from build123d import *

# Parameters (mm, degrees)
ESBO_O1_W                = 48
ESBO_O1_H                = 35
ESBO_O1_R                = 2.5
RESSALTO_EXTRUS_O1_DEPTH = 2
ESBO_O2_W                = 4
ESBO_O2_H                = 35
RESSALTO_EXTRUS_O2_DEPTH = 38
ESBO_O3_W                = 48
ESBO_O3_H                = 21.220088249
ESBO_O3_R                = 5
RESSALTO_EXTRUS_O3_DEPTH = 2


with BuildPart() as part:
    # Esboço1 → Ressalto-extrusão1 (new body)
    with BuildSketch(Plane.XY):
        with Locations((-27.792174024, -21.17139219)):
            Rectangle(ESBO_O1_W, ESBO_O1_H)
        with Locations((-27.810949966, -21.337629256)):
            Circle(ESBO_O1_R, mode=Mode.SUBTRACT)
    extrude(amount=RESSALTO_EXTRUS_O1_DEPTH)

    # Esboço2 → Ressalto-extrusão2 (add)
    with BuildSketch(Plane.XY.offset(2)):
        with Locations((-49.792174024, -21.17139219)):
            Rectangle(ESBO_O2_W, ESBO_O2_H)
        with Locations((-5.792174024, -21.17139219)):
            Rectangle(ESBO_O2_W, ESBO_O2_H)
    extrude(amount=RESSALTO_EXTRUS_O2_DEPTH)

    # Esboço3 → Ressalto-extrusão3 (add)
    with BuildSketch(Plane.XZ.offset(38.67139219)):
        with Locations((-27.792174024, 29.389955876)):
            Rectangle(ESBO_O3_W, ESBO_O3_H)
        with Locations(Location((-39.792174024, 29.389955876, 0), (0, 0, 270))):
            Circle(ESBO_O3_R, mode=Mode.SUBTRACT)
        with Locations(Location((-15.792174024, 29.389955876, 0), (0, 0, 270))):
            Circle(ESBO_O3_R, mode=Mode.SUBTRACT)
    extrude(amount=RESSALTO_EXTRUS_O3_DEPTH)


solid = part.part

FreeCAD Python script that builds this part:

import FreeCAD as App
import Part
import Sketcher
Q = App.Units.Quantity

doc = App.newDocument("Part")
params = doc.addObject("Spreadsheet::Sheet", "Params")
for row, (alias, value) in enumerate([
    ("sketch1_diameter", "5 mm"),
    ("sketch1_width", "48 mm"),
    ("sketch1_height", "35 mm"),
    ("pad1_length", "2 mm"),
    ("sketch2_width", "4 mm"),
    ("sketch2_height", "35 mm"),
    ("pad2_length", "38 mm"),
    ("sketch3_diameter", "10 mm"),
    ("sketch3_width", "48 mm"),
    ("pad3_length", "2 mm"),
], start=1):
    params.set(f"A{row}", alias)
    params.set(f"B{row}", "=" + value)
    params.setAlias(f"B{row}", alias)

body = doc.addObject("PartDesign::Body", "Body")

sketch1 = body.newObject("Sketcher::SketchObject", "Sketch")
sketch1.AttachmentSupport = (doc.getObject("XY_Plane"), [""])
sketch1.MapMode = "FlatFace"
sketch1.addGeometry(Part.LineSegment(App.Vector(-51.792174, -3.671392, 0), App.Vector(-51.792174, -38.671392, 0)), False)
sketch1.addGeometry(Part.LineSegment(App.Vector(-51.792174, -38.671392, 0), App.Vector(-3.792174, -38.671392, 0)), False)
sketch1.addGeometry(Part.LineSegment(App.Vector(-3.792174, -38.671392, 0), App.Vector(-3.792174, -3.671392, 0)), False)
sketch1.addGeometry(Part.LineSegment(App.Vector(-3.792174, -3.671392, 0), App.Vector(-51.792174, -3.671392, 0)), False)
sketch1.addGeometry(Part.Circle(App.Vector(-27.81095, -21.337629, 0), App.Vector(0, 0, 1), 2.5), False)
sketch1.addConstraint(Sketcher.Constraint("Coincident", 0, 2, 1, 1))
sketch1.addConstraint(Sketcher.Constraint("Coincident", 1, 2, 2, 1))
sketch1.addConstraint(Sketcher.Constraint("Coincident", 2, 2, 3, 1))
sketch1.addConstraint(Sketcher.Constraint("Coincident", 3, 2, 0, 1))
sketch1.addConstraint(Sketcher.Constraint("Vertical", 0))
sketch1.addConstraint(Sketcher.Constraint("Horizontal", 1))
sketch1.addConstraint(Sketcher.Constraint("Vertical", 2))
sketch1.addConstraint(Sketcher.Constraint("Horizontal", 3))
sketch1.addConstraint(Sketcher.Constraint("Diameter", 4, Q("5 mm")))
sketch1.addConstraint(Sketcher.Constraint("DistanceX", 1, 1, 1, 2, Q("48 mm")))
sketch1.addConstraint(Sketcher.Constraint("DistanceY", 0, 2, 0, 1, Q("35 mm")))
sketch1.addConstraint(Sketcher.Constraint("DistanceX", 4, 3, -1, 1, Q("27.81095 mm")))
sketch1.addConstraint(Sketcher.Constraint("DistanceY", 4, 3, -1, 1, Q("21.337629 mm")))
sketch1.addConstraint(Sketcher.Constraint("DistanceX", 0, 2, -1, 1, Q("51.792174 mm")))
sketch1.addConstraint(Sketcher.Constraint("DistanceY", 0, 2, -1, 1, Q("38.671392 mm")))
sketch1.setExpression("Constraints[8]", "Params.sketch1_diameter")
sketch1.setExpression("Constraints[9]", "Params.sketch1_width")
sketch1.setExpression("Constraints[10]", "Params.sketch1_height")
pad1 = body.newObject("PartDesign::Pad", "Pad")
pad1.Profile = sketch1
pad1.setExpression("Length", "Params.pad1_length")

sketch2 = body.newObject("Sketcher::SketchObject", "Sketch001")
sketch2.AttachmentSupport = (doc.getObject("XY_Plane"), [""])
sketch2.MapMode = "FlatFace"
sketch2.AttachmentOffset = App.Placement(App.Vector(0, 0, 2), App.Rotation())
sketch2.addGeometry(Part.LineSegment(App.Vector(-51.792174, -3.671392, 0), App.Vector(-51.792174, -38.671392, 0)), False)
sketch2.addGeometry(Part.LineSegment(App.Vector(-51.792174, -38.671392, 0), App.Vector(-47.792174, -38.671392, 0)), False)
sketch2.addGeometry(Part.LineSegment(App.Vector(-47.792174, -38.671392, 0), App.Vector(-47.792174, -3.671392, 0)), False)
sketch2.addGeometry(Part.LineSegment(App.Vector(-47.792174, -3.671392, 0), App.Vector(-51.792174, -3.671392, 0)), False)
sketch2.addGeometry(Part.LineSegment(App.Vector(-7.792174, -3.671392, 0), App.Vector(-7.792174, -38.671392, 0)), False)
sketch2.addGeometry(Part.LineSegment(App.Vector(-7.792174, -38.671392, 0), App.Vector(-3.792174, -38.671392, 0)), False)
sketch2.addGeometry(Part.LineSegment(App.Vector(-3.792174, -38.671392, 0), App.Vector(-3.792174, -3.671392, 0)), False)
sketch2.addGeometry(Part.LineSegment(App.Vector(-3.792174, -3.671392, 0), App.Vector(-7.792174, -3.671392, 0)), False)
sketch2.addConstraint(Sketcher.Constraint("Coincident", 0, 2, 1, 1))
sketch2.addConstraint(Sketcher.Constraint("Coincident", 1, 2, 2, 1))
sketch2.addConstraint(Sketcher.Constraint("Coincident", 2, 2, 3, 1))
sketch2.addConstraint(Sketcher.Constraint("Coincident", 3, 2, 0, 1))
sketch2.addConstraint(Sketcher.Constraint("Coincident", 4, 2, 5, 1))
sketch2.addConstraint(Sketcher.Constraint("Coincident", 5, 2, 6, 1))
sketch2.addConstraint(Sketcher.Constraint("Coincident", 6, 2, 7, 1))
sketch2.addConstraint(Sketcher.Constraint("Coincident", 7, 2, 4, 1))
sketch2.addConstraint(Sketcher.Constraint("Vertical", 0))
sketch2.addConstraint(Sketcher.Constraint("Horizontal", 1))
sketch2.addConstraint(Sketcher.Constraint("Vertical", 2))
sketch2.addConstraint(Sketcher.Constraint("Horizontal", 3))
sketch2.addConstraint(Sketcher.Constraint("Vertical", 4))
sketch2.addConstraint(Sketcher.Constraint("Horizontal", 5))
sketch2.addConstraint(Sketcher.Constraint("Vertical", 6))
sketch2.addConstraint(Sketcher.Constraint("Horizontal", 7))
sketch2.addConstraint(Sketcher.Constraint("Horizontal", 1, 2, 4, 2))
sketch2.addConstraint(Sketcher.Constraint("Horizontal", 3, 2, 6, 2))
sketch2.addConstraint(Sketcher.Constraint("Equal", 3, 5))
sketch2.addConstraint(Sketcher.Constraint("DistanceX", 1, 1, 1, 2, Q("4 mm")))
sketch2.addConstraint(Sketcher.Constraint("DistanceY", 0, 2, 0, 1, Q("35 mm")))
sketch2.addConstraint(Sketcher.Constraint("DistanceX", 1, 2, 4, 2, Q("40 mm")))
sketch2.addConstraint(Sketcher.Constraint("DistanceX", 0, 2, -1, 1, Q("51.792174 mm")))
sketch2.addConstraint(Sketcher.Constraint("DistanceY", 0, 2, -1, 1, Q("38.671392 mm")))
sketch2.setExpression("Constraints[19]", "Params.sketch2_width")
sketch2.setExpression("Constraints[20]", "Params.sketch2_height")
pad2 = body.newObject("PartDesign::Pad", "Pad001")
pad2.Profile = sketch2
pad2.setExpression("Length", "Params.pad2_length")

sketch3 = body.newObject("Sketcher::SketchObject", "Sketch002")
sketch3.AttachmentSupport = (doc.getObject("XZ_Plane"), [""])
sketch3.MapMode = "FlatFace"
sketch3.AttachmentOffset = App.Placement(App.Vector(0, 0, 38.671392), App.Rotation())
sketch3.addGeometry(Part.LineSegment(App.Vector(-51.792174, 40, 0), App.Vector(-51.792174, 18.779912, 0)), False)
sketch3.addGeometry(Part.LineSegment(App.Vector(-51.792174, 18.779912, 0), App.Vector(-3.792174, 18.779912, 0)), False)
sketch3.addGeometry(Part.LineSegment(App.Vector(-3.792174, 18.779912, 0), App.Vector(-3.792174, 40, 0)), False)
sketch3.addGeometry(Part.LineSegment(App.Vector(-3.792174, 40, 0), App.Vector(-51.792174, 40, 0)), False)
sketch3.addGeometry(Part.Circle(App.Vector(-39.792174, 29.389956, 0), App.Vector(0, 0, 1), 5), False)
sketch3.addGeometry(Part.Circle(App.Vector(-15.792174, 29.389956, 0), App.Vector(0, 0, 1), 5), False)
sketch3.addConstraint(Sketcher.Constraint("Coincident", 0, 2, 1, 1))
sketch3.addConstraint(Sketcher.Constraint("Coincident", 1, 2, 2, 1))
sketch3.addConstraint(Sketcher.Constraint("Coincident", 2, 2, 3, 1))
sketch3.addConstraint(Sketcher.Constraint("Coincident", 3, 2, 0, 1))
sketch3.addConstraint(Sketcher.Constraint("Vertical", 0))
sketch3.addConstraint(Sketcher.Constraint("Horizontal", 1))
sketch3.addConstraint(Sketcher.Constraint("Vertical", 2))
sketch3.addConstraint(Sketcher.Constraint("Horizontal", 3))
sketch3.addConstraint(Sketcher.Constraint("Equal", 4, 5))
sketch3.addConstraint(Sketcher.Constraint("Horizontal", 4, 3, 5, 3))
sketch3.addConstraint(Sketcher.Constraint("Diameter", 4, Q("10 mm")))
sketch3.addConstraint(Sketcher.Constraint("DistanceX", 1, 1, 1, 2, Q("48 mm")))
sketch3.addConstraint(Sketcher.Constraint("DistanceY", -1, 1, 2, 2, Q("40 mm")))
sketch3.addConstraint(Sketcher.Constraint("DistanceX", 4, 3, 5, 3, Q("24 mm")))
sketch3.addConstraint(Sketcher.Constraint("DistanceX", 0, 2, 4, 3, Q("12 mm")))
sketch3.addConstraint(Sketcher.Constraint("DistanceY", 0, 2, 0, 1, Q("21.220088 mm")))
sketch3.addConstraint(Sketcher.Constraint("DistanceX", 4, 3, -1, 1, Q("39.792174 mm")))
sketch3.addConstraint(Sketcher.Constraint("DistanceY", -1, 1, 4, 3, Q("29.389956 mm")))
sketch3.setExpression("Constraints[10]", "Params.sketch3_diameter")
sketch3.setExpression("Constraints[11]", "Params.sketch3_width")
pad3 = body.newObject("PartDesign::Pad", "Pad002")
pad3.Profile = sketch3
pad3.setExpression("Length", "Params.pad3_length")

doc.recompute()
